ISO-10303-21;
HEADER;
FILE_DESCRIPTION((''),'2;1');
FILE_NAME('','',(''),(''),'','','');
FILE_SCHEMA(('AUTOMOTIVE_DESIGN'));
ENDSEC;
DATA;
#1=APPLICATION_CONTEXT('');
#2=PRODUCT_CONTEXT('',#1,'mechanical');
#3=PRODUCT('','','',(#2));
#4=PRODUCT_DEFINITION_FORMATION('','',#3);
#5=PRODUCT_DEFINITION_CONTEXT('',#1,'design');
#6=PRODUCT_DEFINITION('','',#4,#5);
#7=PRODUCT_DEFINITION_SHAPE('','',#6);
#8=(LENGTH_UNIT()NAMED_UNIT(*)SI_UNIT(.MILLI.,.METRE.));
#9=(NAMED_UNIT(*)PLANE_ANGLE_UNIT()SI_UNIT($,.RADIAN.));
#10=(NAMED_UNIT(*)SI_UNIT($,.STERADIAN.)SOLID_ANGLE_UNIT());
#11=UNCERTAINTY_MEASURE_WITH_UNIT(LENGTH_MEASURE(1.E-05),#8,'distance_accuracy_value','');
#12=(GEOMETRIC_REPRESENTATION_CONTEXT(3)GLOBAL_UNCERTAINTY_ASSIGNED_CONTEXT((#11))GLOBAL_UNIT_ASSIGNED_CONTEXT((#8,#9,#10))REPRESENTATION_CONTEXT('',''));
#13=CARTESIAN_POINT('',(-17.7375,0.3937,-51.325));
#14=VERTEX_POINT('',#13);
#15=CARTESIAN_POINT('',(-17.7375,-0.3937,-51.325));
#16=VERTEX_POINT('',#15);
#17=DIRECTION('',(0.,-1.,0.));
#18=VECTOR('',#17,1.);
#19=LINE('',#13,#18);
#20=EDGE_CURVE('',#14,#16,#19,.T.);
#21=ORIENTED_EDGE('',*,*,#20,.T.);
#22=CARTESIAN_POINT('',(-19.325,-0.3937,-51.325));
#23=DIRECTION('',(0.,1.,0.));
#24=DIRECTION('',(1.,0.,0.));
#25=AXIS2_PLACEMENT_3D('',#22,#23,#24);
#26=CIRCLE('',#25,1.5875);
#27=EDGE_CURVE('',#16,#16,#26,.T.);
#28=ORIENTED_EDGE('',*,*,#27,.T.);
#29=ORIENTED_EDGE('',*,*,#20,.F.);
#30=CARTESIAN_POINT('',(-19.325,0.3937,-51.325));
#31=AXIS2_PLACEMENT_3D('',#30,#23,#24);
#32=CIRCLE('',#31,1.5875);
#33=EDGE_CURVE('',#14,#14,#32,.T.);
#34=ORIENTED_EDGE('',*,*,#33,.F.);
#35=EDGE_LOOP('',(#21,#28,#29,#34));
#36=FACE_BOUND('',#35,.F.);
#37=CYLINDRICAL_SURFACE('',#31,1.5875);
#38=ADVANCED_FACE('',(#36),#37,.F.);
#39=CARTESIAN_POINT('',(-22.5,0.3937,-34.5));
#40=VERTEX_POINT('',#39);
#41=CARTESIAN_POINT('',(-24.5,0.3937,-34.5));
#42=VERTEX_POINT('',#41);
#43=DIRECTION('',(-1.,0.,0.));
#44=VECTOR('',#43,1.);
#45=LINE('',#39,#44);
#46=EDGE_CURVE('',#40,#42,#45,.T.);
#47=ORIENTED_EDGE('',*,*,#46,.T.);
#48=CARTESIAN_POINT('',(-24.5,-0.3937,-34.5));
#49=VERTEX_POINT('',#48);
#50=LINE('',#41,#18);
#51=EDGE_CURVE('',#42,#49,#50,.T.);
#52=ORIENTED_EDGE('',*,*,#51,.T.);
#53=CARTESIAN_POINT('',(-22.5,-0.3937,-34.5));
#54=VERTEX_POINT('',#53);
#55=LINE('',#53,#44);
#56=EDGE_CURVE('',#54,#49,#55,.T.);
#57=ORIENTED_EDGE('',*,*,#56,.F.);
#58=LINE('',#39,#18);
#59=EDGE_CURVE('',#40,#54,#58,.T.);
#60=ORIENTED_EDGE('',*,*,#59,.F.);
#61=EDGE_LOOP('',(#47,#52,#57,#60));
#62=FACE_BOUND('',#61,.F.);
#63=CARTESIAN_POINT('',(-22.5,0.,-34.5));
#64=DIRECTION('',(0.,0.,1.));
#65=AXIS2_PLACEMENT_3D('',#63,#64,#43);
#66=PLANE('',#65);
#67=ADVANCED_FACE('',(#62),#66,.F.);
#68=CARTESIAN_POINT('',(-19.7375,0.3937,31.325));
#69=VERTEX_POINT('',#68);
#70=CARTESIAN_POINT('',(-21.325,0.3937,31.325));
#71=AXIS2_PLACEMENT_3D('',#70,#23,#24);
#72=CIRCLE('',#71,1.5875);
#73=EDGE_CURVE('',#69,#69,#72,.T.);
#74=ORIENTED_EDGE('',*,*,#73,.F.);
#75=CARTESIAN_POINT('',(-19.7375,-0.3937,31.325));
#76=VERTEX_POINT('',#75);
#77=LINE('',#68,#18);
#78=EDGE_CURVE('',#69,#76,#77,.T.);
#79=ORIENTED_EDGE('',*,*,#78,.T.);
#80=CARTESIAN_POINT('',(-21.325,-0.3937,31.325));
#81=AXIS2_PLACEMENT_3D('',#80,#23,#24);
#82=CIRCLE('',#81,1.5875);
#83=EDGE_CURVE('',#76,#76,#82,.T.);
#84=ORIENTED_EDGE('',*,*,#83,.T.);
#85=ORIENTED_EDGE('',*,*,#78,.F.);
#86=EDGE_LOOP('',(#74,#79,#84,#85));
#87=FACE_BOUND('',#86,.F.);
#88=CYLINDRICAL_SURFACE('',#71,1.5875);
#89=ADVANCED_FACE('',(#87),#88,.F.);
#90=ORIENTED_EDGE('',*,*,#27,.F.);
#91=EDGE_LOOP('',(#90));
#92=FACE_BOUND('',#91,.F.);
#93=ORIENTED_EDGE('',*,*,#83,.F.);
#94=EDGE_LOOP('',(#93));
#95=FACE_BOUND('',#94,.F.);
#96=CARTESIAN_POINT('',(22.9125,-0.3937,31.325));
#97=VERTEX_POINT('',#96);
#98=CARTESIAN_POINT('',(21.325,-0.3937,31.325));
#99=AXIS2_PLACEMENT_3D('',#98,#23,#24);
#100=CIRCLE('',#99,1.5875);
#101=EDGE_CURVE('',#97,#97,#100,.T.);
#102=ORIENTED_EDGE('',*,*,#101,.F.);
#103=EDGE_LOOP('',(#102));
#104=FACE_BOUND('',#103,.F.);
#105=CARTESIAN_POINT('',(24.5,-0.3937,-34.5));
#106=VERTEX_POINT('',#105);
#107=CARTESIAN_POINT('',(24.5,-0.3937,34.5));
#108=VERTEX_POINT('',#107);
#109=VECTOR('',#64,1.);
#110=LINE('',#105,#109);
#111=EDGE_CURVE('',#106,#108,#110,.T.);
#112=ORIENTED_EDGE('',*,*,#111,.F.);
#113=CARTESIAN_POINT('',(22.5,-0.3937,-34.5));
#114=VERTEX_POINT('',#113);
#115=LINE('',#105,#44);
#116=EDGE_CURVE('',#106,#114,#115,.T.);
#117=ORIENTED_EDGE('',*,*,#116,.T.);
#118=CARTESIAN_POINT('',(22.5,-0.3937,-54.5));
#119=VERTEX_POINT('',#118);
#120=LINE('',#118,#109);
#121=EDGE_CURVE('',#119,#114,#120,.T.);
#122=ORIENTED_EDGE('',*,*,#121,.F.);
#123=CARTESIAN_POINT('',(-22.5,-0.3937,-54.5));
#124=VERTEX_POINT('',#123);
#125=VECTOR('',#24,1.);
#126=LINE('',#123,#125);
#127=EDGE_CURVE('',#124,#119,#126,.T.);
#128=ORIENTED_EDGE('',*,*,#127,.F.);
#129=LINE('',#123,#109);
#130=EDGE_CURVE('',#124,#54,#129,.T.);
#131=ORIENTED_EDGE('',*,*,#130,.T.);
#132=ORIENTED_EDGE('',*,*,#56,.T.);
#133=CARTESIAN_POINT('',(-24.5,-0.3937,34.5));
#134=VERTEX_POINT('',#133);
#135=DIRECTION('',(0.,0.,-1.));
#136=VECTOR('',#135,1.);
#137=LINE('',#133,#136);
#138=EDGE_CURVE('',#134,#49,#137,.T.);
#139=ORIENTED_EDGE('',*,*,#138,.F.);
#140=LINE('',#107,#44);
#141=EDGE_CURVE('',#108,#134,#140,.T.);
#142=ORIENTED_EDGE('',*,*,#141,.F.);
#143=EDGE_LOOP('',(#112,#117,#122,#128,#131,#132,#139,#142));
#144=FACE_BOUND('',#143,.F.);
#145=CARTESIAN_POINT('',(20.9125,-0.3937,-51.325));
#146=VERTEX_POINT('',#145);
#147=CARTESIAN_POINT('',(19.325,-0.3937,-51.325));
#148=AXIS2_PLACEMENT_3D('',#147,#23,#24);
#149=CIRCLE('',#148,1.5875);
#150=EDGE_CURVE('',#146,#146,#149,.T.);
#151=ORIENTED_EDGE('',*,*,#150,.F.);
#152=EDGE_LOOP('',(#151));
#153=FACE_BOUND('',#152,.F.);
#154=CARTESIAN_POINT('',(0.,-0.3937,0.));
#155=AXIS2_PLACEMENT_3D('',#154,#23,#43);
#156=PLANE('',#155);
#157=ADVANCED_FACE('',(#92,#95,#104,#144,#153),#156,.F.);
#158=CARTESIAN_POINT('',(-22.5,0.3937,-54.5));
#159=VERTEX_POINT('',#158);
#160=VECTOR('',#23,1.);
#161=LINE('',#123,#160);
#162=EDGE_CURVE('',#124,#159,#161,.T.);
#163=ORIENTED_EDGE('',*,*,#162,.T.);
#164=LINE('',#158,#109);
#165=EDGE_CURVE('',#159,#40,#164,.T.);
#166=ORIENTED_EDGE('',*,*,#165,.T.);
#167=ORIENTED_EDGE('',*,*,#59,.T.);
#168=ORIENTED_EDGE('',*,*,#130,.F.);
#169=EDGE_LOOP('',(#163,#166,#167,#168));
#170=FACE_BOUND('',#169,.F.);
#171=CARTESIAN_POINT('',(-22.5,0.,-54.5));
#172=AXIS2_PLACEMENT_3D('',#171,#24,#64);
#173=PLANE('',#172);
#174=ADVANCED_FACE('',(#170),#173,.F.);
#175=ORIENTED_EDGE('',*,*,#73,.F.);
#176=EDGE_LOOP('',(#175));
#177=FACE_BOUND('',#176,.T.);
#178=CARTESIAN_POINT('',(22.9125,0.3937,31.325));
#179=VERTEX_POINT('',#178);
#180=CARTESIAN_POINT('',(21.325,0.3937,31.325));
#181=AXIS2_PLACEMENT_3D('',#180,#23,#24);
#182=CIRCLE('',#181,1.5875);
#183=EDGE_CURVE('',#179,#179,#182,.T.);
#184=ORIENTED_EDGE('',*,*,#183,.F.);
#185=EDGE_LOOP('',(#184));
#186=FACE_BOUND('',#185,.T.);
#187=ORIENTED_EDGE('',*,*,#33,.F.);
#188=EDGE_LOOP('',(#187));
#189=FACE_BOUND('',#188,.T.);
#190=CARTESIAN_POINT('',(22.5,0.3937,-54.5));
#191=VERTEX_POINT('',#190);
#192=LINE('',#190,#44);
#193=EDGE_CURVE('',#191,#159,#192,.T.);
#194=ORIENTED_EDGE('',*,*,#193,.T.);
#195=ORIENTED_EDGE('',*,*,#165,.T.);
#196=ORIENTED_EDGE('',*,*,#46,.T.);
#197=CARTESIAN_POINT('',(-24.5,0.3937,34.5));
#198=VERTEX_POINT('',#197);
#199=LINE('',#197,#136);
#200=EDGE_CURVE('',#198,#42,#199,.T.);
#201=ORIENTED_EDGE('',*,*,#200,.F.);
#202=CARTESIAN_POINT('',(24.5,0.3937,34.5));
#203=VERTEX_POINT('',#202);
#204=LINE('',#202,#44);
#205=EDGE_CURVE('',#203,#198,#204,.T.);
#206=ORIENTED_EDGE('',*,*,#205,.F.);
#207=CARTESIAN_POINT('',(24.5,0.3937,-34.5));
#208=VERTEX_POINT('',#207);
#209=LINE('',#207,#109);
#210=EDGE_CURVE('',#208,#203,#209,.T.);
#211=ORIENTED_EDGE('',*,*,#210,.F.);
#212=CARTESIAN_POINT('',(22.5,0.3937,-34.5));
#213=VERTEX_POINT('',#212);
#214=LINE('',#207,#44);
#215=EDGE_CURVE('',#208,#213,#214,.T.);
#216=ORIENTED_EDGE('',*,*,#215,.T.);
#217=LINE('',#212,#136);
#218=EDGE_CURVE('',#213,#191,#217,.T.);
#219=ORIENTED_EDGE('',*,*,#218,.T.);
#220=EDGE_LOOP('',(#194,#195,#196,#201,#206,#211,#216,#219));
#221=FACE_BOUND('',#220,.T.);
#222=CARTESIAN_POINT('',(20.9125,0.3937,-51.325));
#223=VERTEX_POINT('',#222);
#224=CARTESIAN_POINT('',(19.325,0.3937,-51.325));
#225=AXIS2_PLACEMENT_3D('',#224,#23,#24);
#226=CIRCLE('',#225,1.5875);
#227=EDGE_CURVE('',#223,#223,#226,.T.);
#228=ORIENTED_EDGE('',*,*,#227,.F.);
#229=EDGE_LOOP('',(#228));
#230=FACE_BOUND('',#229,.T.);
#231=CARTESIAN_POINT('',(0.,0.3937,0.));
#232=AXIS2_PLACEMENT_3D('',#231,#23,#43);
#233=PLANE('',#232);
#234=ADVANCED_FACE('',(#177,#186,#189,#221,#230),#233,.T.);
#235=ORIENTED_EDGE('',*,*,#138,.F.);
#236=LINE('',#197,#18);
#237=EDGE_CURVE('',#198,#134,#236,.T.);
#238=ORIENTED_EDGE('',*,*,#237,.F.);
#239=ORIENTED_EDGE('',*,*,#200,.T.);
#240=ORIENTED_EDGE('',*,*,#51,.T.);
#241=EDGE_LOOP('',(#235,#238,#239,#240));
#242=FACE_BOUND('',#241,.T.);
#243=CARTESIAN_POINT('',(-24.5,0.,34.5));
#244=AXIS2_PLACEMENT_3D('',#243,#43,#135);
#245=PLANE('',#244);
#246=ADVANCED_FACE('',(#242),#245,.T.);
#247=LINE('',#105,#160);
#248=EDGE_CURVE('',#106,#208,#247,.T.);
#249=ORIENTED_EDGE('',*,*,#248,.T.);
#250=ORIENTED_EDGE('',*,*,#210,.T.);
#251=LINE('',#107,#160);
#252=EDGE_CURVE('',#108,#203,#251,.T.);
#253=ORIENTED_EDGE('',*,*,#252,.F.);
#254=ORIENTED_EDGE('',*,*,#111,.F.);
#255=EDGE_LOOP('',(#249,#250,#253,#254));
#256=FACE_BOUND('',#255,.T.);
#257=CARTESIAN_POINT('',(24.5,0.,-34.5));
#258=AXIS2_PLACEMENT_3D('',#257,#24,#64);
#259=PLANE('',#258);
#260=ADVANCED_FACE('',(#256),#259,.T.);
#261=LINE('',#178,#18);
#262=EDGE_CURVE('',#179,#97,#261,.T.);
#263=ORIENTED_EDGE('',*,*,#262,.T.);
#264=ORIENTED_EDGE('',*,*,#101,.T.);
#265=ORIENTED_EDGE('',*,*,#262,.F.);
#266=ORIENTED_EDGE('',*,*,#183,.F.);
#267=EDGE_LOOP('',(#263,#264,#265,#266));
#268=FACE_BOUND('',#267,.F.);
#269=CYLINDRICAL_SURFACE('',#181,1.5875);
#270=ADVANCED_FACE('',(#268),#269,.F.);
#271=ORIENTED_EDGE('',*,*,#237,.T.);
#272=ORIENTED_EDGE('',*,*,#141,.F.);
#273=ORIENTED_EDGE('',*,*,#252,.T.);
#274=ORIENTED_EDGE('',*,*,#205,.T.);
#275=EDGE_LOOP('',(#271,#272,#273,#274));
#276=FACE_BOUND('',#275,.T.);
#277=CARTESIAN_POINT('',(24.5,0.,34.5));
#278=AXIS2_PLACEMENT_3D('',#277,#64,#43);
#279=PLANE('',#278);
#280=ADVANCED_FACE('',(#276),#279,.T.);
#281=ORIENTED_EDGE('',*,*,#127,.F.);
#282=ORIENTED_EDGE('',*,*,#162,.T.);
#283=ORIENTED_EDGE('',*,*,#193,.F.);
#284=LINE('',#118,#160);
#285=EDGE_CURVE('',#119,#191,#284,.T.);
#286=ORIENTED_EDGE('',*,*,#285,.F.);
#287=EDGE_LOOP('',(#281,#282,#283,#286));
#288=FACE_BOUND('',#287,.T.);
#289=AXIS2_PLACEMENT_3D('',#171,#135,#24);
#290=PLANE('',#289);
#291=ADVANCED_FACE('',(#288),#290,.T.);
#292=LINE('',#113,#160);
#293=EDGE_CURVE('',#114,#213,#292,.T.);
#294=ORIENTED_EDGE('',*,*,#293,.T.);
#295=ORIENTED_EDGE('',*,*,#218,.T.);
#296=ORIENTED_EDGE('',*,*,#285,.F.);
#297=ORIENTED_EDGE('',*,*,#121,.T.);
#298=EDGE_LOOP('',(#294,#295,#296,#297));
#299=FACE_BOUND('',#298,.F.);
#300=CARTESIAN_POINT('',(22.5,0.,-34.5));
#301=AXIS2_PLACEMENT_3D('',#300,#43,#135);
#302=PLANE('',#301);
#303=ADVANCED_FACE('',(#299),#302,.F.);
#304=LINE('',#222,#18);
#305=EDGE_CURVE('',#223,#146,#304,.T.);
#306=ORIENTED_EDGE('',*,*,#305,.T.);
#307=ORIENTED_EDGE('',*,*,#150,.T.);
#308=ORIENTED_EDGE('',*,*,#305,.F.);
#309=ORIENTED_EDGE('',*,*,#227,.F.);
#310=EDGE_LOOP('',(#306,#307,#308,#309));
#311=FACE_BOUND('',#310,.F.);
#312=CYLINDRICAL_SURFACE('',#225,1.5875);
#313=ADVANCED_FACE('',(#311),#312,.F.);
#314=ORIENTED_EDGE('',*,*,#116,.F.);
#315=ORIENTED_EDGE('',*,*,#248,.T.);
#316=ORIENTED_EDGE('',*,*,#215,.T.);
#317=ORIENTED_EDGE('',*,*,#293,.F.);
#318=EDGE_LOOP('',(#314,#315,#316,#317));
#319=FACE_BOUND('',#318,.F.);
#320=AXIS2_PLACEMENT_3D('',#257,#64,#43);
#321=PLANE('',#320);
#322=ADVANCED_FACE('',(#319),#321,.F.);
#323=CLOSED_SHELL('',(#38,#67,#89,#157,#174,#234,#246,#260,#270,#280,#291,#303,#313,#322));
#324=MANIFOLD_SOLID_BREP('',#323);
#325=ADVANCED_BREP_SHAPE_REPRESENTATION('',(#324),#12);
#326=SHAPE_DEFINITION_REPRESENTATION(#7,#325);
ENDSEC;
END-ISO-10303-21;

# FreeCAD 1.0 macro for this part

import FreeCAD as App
import Part
import Sketcher
from FreeCAD import Vector
Q = App.Units.Quantity


def add_polygon(sketch, points):
    """Adds a closed chain of lines whose ends are joined by coincident constraints."""
    first, n = sketch.GeometryCount, len(points)
    for a, b in zip(points, points[1:] + points[:1]):
        sketch.addGeometry(Part.LineSegment(App.Vector(*a, 0), App.Vector(*b, 0)), False)
    for i in range(n):
        sketch.addConstraint(Sketcher.Constraint("Coincident", first + i, 2, first + (i + 1) % n, 1))

doc = App.newDocument("Part")
params = doc.addObject("Spreadsheet::Sheet", "Params")
for row, (alias, value) in enumerate([
    ("sketch1_width", "49 mm"),
    ("sketch1_width2", "45 mm"),
    ("sketch1_height", "69 mm"),
    ("sketch1_height2", "20 mm"),
    ("pad1_length", "0.7874 mm"),
], start=1):
    params.set(f"A{row}", alias)
    params.set(f"B{row}", "=" + value)
    params.setAlias(f"B{row}", alias)

body = doc.addObject("PartDesign::Body", "Body")

# Sketch on XZ plane
sketch1 = doc.addObject("Sketcher::SketchObject", "Sketch")
body.addObject(sketch1)
sketch1.AttachmentSupport = (doc.XZ_Plane, [""])
sketch1.MapMode = "FlatFace"
add_polygon(sketch1, [(-24.5, 34.5), (24.5, 34.5), (24.5, -34.5), (22.5, -34.5), (22.5, -54.5), (-22.5, -54.5), (-22.5, -34.5), (-24.5, -34.5)])  # lines 0-7
sketch1.addConstraint([
    Sketcher.Constraint("Horizontal", 0),
    Sketcher.Constraint("Vertical", 1),
    Sketcher.Constraint("Horizontal", 2),
    Sketcher.Constraint("Vertical", 3),
    Sketcher.Constraint("Horizontal", 4),
    Sketcher.Constraint("Vertical", 5),
    Sketcher.Constraint("Horizontal", 6),
    Sketcher.Constraint("Vertical", 7),
    Sketcher.Constraint("Symmetric", 0, 2, 6, 2, -1, 1),
    Sketcher.Constraint("Symmetric", 2, 2, 5, 2, -2),
    Sketcher.Constraint("DistanceX", 0, 1, 0, 2, Q("49 mm")),
    Sketcher.Constraint("DistanceX", 4, 2, 4, 1, Q("45 mm")),
    Sketcher.Constraint("DistanceY", 1, 2, 1, 1, Q("69 mm")),
    Sketcher.Constraint("DistanceY", 3, 2, 3, 1, Q("20 mm")),
])
sketch1.setExpression("Constraints[18]", "Params.sketch1_width")
sketch1.setExpression("Constraints[19]", "Params.sketch1_width2")
sketch1.setExpression("Constraints[20]", "Params.sketch1_height")
sketch1.setExpression("Constraints[21]", "Params.sketch1_height2")
pad1 = doc.addObject("PartDesign::Pad", "Pad")
body.addObject(pad1)
pad1.Profile = sketch1
pad1.setExpression("Length", "Params.pad1_length")
pad1.Midplane = True

# Sketch on XZ plane
sketch2 = doc.addObject("Sketcher::SketchObject", "Sketch001")
body.addObject(sketch2)
sketch2.AttachmentSupport = (doc.XZ_Plane, [""])
sketch2.MapMode = "FlatFace"
sketch2.AttachmentOffset = App.Placement(Vector(0, 0, -0.3937), App.Rotation())
sketch2.addGeometry([
    Part.Circle(Vector(-19.325, -51.325, 0), Vector(0, 0, 1), 1.5875),
    Part.Circle(Vector(19.325, -51.325, 0), Vector(0, 0, 1), 1.5875),
    Part.Circle(Vector(21.325, 31.325, 0), Vector(0, 0, 1), 1.5875),
    Part.Circle(Vector(-21.325, 31.325, 0), Vector(0, 0, 1), 1.5875),
], False)
sketch2.addConstraint([
    Sketcher.Constraint("Equal", 0, 1),
    Sketcher.Constraint("Equal", 1, 2),
    Sketcher.Constraint("Equal", 2, 3),
    Sketcher.Constraint("Symmetric", 0, 3, 1, 3, -2),
    Sketcher.Constraint("Symmetric", 2, 3, 3, 3, -2),
    Sketcher.Constraint("Diameter", 0, Q("3.175 mm")),
    Sketcher.Constraint("DistanceX", 1, 3, 2, 3, Q("2 mm")),
    Sketcher.Constraint("DistanceX", 0, 3, 1, 3, Q("38.65 mm")),
    Sketcher.Constraint("DistanceY", 1, 3, 2, 3, Q("82.65 mm")),
    Sketcher.Constraint("DistanceY", 0, 3, -1, 1, Q("51.325 mm")),
])
pocket1 = doc.addObject("PartDesign::Pocket", "Pocket")
body.addObject(pocket1)
pocket1.Profile = sketch2
pocket1.Type = "ThroughAll"
pocket1.Reversed = True

doc.recompute()
